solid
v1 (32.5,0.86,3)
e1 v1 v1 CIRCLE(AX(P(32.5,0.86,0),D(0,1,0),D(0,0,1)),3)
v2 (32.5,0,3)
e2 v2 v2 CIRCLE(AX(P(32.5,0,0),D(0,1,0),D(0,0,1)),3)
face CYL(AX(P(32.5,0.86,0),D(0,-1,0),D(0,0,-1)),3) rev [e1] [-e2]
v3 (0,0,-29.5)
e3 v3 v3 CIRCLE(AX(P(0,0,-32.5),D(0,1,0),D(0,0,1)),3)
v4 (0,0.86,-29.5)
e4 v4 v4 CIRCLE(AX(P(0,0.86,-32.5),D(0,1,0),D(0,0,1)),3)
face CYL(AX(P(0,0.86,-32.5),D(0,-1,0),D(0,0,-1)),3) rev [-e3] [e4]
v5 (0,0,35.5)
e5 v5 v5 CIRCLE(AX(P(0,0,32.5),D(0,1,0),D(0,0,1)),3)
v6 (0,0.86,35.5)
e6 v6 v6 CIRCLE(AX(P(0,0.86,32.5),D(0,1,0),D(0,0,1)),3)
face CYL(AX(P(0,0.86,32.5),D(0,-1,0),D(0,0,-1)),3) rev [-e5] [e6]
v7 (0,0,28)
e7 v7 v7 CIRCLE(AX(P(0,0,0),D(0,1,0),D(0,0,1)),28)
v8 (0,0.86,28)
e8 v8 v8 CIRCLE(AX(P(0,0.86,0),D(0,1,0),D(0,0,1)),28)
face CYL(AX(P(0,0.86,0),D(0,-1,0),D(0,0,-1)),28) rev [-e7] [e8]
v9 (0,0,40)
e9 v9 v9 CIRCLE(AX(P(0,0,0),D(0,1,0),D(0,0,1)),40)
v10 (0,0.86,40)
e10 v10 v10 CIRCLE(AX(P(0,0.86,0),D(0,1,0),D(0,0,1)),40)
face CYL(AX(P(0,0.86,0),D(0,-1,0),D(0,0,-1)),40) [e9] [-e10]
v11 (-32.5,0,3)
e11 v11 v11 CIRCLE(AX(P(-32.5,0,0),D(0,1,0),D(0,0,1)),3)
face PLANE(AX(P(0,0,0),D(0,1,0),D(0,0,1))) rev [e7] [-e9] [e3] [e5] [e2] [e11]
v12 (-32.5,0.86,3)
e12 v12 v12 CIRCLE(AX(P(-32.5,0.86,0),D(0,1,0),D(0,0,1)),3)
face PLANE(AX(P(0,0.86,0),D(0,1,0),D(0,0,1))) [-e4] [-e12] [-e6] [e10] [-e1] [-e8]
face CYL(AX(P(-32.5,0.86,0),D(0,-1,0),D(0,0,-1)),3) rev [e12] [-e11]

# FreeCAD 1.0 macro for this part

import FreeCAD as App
import Part
import Sketcher

doc = App.newDocument("Part")
body = doc.addObject("PartDesign::Body", "Body")

sketch1 = body.newObject("Sketcher::SketchObject", "Sketch")
sketch1.AttachmentSupport = (doc.getObject("XZ_Plane"), [""])
sketch1.MapMode = "FlatFace"
sketch1.addGeometry(Part.Circle(App.Vector(0, 0, 0), App.Vector(0, 0, 1), 40), False)
sketch1.addGeometry(Part.Circle(App.Vector(0, -32.5, 0), App.Vector(0, 0, 1), 3), False)
sketch1.addGeometry(Part.Circle(App.Vector(-32.5, 0, 0), App.Vector(0, 0, 1), 3), False)
sketch1.addGeometry(Part.Circle(App.Vector(32.5, 0, 0), App.Vector(0, 0, 1), 3), False)
sketch1.addGeometry(Part.Circle(App.Vector(0, 0, 0), App.Vector(0, 0, 1), 28), False)
sketch1.addGeometry(Part.Circle(App.Vector(0, 32.5, 0), App.Vector(0, 0, 1), 3), False)
sketch1.addConstraint(Sketcher.Constraint("Coincident", 0, 3, -1, 1))
sketch1.addConstraint(Sketcher.Constraint("Coincident", 4, 3, -1, 1))
sketch1.addConstraint(Sketcher.Constraint("Equal", 1, 2))
sketch1.addConstraint(Sketcher.Constraint("Equal", 2, 3))
sketch1.addConstraint(Sketcher.Constraint("Equal", 3, 5))
sketch1.addConstraint(Sketcher.Constraint("Symmetric", 2, 3, 3, 3, -1, 1))
sketch1.addConstraint(Sketcher.Constraint("Symmetric", 1, 3, 5, 3, -1, 1))
sketch1.addConstraint(Sketcher.Constraint("PointOnObject", 1, 3, -2))
sketch1.addConstraint(Sketcher.Constraint("PointOnObject", 2, 3, -1))
sketch1.addConstraint(Sketcher.Constraint("Diameter", 0, 80.0))
sketch1.addConstraint(Sketcher.Constraint("Diameter", 1, 6.0))
sketch1.addConstraint(Sketcher.Constraint("Diameter", 4, 56.0))
sketch1.addConstraint(Sketcher.Constraint("DistanceX", 2, 3, 3, 3, 65.0))
sketch1.addConstraint(Sketcher.Constraint("DistanceY", 1, 3, 5, 3, 65.0))
pad1 = body.newObject("PartDesign::Pad", "Pad")
pad1.Profile = sketch1
pad1.Length = 0.86
pad1.Reversed = True

doc.recompute()
